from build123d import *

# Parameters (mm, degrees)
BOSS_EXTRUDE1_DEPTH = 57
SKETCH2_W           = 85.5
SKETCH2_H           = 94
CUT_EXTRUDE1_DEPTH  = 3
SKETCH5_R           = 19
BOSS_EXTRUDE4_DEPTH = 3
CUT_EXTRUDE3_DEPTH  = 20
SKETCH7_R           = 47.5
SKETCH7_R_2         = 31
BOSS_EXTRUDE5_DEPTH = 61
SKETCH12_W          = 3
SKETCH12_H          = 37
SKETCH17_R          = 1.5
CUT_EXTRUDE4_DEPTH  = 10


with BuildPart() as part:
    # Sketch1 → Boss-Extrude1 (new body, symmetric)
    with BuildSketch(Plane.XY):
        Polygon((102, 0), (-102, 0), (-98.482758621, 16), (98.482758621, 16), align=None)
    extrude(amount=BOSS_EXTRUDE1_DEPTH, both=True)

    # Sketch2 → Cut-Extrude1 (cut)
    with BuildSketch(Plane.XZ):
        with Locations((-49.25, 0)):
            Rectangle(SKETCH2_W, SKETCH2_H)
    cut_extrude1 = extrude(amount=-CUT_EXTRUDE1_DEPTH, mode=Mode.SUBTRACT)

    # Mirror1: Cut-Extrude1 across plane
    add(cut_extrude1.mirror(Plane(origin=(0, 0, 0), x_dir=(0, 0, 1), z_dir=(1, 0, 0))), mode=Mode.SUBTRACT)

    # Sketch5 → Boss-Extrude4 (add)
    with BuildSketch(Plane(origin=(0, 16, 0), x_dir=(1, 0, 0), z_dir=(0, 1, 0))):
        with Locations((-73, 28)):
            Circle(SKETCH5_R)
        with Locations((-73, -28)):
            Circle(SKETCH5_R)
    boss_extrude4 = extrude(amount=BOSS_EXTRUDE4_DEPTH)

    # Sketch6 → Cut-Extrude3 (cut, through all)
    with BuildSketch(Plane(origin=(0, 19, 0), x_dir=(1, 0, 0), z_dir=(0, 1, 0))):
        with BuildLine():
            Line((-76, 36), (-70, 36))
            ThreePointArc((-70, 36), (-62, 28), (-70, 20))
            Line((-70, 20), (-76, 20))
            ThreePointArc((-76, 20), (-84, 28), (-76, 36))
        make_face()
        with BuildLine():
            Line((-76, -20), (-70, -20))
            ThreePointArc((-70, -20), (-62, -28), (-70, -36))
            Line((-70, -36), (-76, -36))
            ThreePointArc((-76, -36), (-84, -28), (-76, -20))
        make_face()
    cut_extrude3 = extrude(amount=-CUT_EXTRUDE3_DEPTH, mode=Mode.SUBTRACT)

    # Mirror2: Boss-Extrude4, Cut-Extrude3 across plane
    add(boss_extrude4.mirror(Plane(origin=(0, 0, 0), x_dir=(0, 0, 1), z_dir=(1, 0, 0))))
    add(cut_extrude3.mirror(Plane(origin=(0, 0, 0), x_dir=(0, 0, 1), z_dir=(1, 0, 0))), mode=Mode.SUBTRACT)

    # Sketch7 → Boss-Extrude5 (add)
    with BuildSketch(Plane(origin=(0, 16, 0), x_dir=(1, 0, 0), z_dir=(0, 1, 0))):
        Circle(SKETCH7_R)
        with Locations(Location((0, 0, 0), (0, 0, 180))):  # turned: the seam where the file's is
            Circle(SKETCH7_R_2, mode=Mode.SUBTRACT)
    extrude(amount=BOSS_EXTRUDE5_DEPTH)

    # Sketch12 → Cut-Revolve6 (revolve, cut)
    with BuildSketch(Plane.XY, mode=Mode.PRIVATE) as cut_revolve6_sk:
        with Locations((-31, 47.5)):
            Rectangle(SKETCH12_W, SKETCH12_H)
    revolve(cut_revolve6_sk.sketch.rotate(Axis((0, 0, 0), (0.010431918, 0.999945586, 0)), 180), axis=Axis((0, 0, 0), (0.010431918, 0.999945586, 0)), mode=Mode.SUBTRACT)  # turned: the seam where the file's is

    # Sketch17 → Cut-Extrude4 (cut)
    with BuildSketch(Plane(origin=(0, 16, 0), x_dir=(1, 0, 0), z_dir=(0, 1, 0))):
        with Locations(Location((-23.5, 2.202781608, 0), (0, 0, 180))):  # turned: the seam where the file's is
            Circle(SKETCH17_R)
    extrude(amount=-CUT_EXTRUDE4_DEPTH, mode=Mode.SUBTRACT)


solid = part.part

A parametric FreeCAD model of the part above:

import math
import FreeCAD as App
import Part
import Sketcher
from FreeCAD import Vector
Q = App.Units.Quantity


def add_polygon(sketch, points):
    """Adds a closed chain of lines whose ends are joined by coincident constraints."""
    first, n = sketch.GeometryCount, len(points)
    for a, b in zip(points, points[1:] + points[:1]):
        sketch.addGeometry(Part.LineSegment(App.Vector(*a, 0), App.Vector(*b, 0)), False)
    for i in range(n):
        sketch.addConstraint(Sketcher.Constraint("Coincident", first + i, 2, first + (i + 1) % n, 1))

doc = App.newDocument("Part")
body = doc.addObject("PartDesign::Body", "Body")

# Sketch on XY plane
sketch1 = body.newObject("Sketcher::SketchObject", "Sketch")
sketch1.AttachmentSupport = (doc.getObject("XY_Plane"), [""])
sketch1.MapMode = "FlatFace"
add_polygon(sketch1, [(-102, 0), (102, 0), (98, 16), (-98, 16)])  # lines 0-3
sketch1.addConstraint([
    Sketcher.Constraint("Horizontal", 0),
    Sketcher.Constraint("Horizontal", 2),
    Sketcher.Constraint("Symmetric", 0, 2, 3, 2, -1, 1),
    Sketcher.Constraint("Equal", 1, 3),
    Sketcher.Constraint("DistanceX", 0, 1, 0, 2, Q("204 mm")),
    Sketcher.Constraint("DistanceY", -1, 1, 1, 2, Q("16 mm")),
    Sketcher.Constraint("DistanceX", 2, 2, 2, 1, Q("196.965517 mm")),
])
pad1 = body.newObject("PartDesign::Pad", "Pad")
pad1.Profile = sketch1
pad1.Length = 114
pad1.Midplane = True

# Sketch on XZ plane
sketch2 = body.newObject("Sketcher::SketchObject", "Sketch001")
sketch2.AttachmentSupport = (doc.getObject("XZ_Plane"), [""])
sketch2.MapMode = "FlatFace"
add_polygon(sketch2, [(-92, 47), (-92, -47), (-6, -47), (-6, 47)])  # lines 0-3
sketch2.addConstraint([
    Sketcher.Constraint("Vertical", 0),
    Sketcher.Constraint("Horizontal", 1),
    Sketcher.Constraint("Vertical", 2),
    Sketcher.Constraint("Horizontal", 3),
    Sketcher.Constraint("DistanceY", 0, 2, 0, 1, Q("94 mm")),
    Sketcher.Constraint("DistanceX", 1, 1, 1, 2, Q("85.5 mm")),
    Sketcher.Constraint("DistanceX", 0, 2, -1, 1, Q("92 mm")),
    Sketcher.Constraint("DistanceY", 0, 2, -1, 1, Q("47 mm")),
])
pocket1 = body.newObject("PartDesign::Pocket", "Pocket")
pocket1.Profile = sketch2
pocket1.Length = 3
doc.recompute()

mirrored = body.newObject("PartDesign::Mirrored", "Mirrored")
mirrored.Originals = [pocket1]
mirrored.MirrorPlane = (doc.getObject("YZ_Plane"), [""])
body.Tip = mirrored

# Sketch on XZ plane
sketch3 = body.newObject("Sketcher::SketchObject", "Sketch002")
sketch3.AttachmentSupport = (doc.getObject("XZ_Plane"), [""])
sketch3.MapMode = "FlatFace"
sketch3.AttachmentOffset = App.Placement(Vector(0, 0, -16), App.Rotation())
sketch3.addGeometry([
    Part.Circle(Vector(-73, -28, 0), Vector(0, 0, 1), 19),
    Part.Circle(Vector(-73, 28, 0), Vector(0, 0, 1), 19),
], False)
sketch3.addConstraint([
    Sketcher.Constraint("Equal", 0, 1),
    Sketcher.Constraint("Symmetric", 0, 3, 1, 3, -1),
    Sketcher.Constraint("Diameter", 0, Q("38 mm")),
    Sketcher.Constraint("DistanceX", 0, 3, -1, 1, Q("73 mm")),
    Sketcher.Constraint("DistanceY", 0, 3, -1, 1, Q("28 mm")),
])
pad2 = body.newObject("PartDesign::Pad", "Pad001")
pad2.Profile = sketch3
pad2.Length = 3
pad2.Reversed = True

# Sketch on XZ plane
sketch4 = body.newObject("Sketcher::SketchObject", "Sketch003")
sketch4.AttachmentSupport = (doc.getObject("XZ_Plane"), [""])
sketch4.MapMode = "FlatFace"
sketch4.AttachmentOffset = App.Placement(Vector(0, 0, -19), App.Rotation())
sketch4.addGeometry([
    Part.LineSegment(Vector(-70, -36, 0), Vector(-76, -36, 0)),  # 0
    Part.ArcOfCircle(Part.Circle(Vector(-76, -28, 0), Vector(0, 0, 1), 8), math.radians(90), math.radians(270)),  # 1
    Part.LineSegment(Vector(-76, -20, 0), Vector(-70, -20, 0)),  # 2
    Part.ArcOfCircle(Part.Circle(Vector(-70, -28, 0), Vector(0, 0, 1), 8), math.radians(-90), math.radians(90)),  # 3
    Part.LineSegment(Vector(-70, 20, 0), Vector(-76, 20, 0)),  # 4
    Part.ArcOfCircle(Part.Circle(Vector(-76, 28, 0), Vector(0, 0, 1), 8), math.radians(90), math.radians(270)),  # 5
    Part.LineSegment(Vector(-76, 36, 0), Vector(-70, 36, 0)),  # 6
    Part.ArcOfCircle(Part.Circle(Vector(-70, 28, 0), Vector(0, 0, 1), 8), math.radians(-90), math.radians(90)),  # 7
], False)
sketch4.addConstraint([
    Sketcher.Constraint("Tangent", 0, 2, 1, 2),
    Sketcher.Constraint("Tangent", 1, 1, 2, 1),
    Sketcher.Constraint("Tangent", 2, 2, 3, 2),
    Sketcher.Constraint("Tangent", 3, 1, 0, 1),
    Sketcher.Constraint("Tangent", 4, 2, 5, 2),
    Sketcher.Constraint("Tangent", 5, 1, 6, 1),
    Sketcher.Constraint("Tangent", 6, 2, 7, 2),
    Sketcher.Constraint("Tangent", 7, 1, 4, 1),
    Sketcher.Constraint("Horizontal", 0),
    Sketcher.Constraint("Horizontal", 2),
    Sketcher.Constraint("Horizontal", 4),
    Sketcher.Constraint("Horizontal", 6),
    Sketcher.Constraint("Equal", 3, 5),
    Sketcher.Constraint("Symmetric", 1, 3, 5, 3, -1),
    Sketcher.Constraint("Vertical", 3, 3, 7, 3),
    Sketcher.Constraint("Radius", 1, Q("8 mm")),
    Sketcher.Constraint("DistanceX", 0, 2, 0, 1, Q("6 mm")),
    Sketcher.Constraint("DistanceX", 1, 3, -1, 1, Q("76 mm")),
    Sketcher.Constraint("DistanceY", 1, 3, -1, 1, Q("28 mm")),
])
pocket2 = body.newObject("PartDesign::Pocket", "Pocket001")
pocket2.Profile = sketch4
pocket2.Type = "ThroughAll"
pocket2.Reversed = True
doc.recompute()

mirrored2 = body.newObject("PartDesign::Mirrored", "Mirrored001")
mirrored2.Originals = [pad2, pocket2]
mirrored2.MirrorPlane = (doc.getObject("YZ_Plane"), [""])
body.Tip = mirrored2

# Sketch on XZ plane
sketch5 = body.newObject("Sketcher::SketchObject", "Sketch004")
sketch5.AttachmentSupport = (doc.getObject("XZ_Plane"), [""])
sketch5.MapMode = "FlatFace"
sketch5.AttachmentOffset = App.Placement(Vector(0, 0, -16), App.Rotation())
sketch5.addGeometry([
    Part.Circle(Vector(0, 0, 0), Vector(0, 0, 1), 48),
    Part.Circle(Vector(0, 0, 0), Vector(0, 0, 1), 31),
], False)
sketch5.addConstraint([
    Sketcher.Constraint("Coincident", 0, 3, -1, 1),
    Sketcher.Constraint("Coincident", 1, 3, -1, 1),
    Sketcher.Constraint("Diameter", 0, Q("95 mm")),
    Sketcher.Constraint("Diameter", 1, Q("62 mm")),
])
pad3 = body.newObject("PartDesign::Pad", "Pad002")
pad3.Profile = sketch5
pad3.Length = 61
pad3.Reversed = True

# Sketch on XY plane
sketch6 = body.newObject("Sketcher::SketchObject", "Sketch005")
sketch6.AttachmentSupport = (doc.getObject("XY_Plane"), [""])
sketch6.MapMode = "FlatFace"
add_polygon(sketch6, [(-32.5, 66), (-32.5, 29), (-29.5, 29), (-29.5, 66)])  # lines 0-3
sketch6.addGeometry(Part.LineSegment(Vector(0.3, 28.7, 0), Vector(0.7, 65.7, 0)), True)  # axis
sketch6.addConstraint([
    Sketcher.Constraint("Vertical", 0),
    Sketcher.Constraint("Horizontal", 1),
    Sketcher.Constraint("Vertical", 2),
    Sketcher.Constraint("Horizontal", 3),
    Sketcher.Constraint("DistanceX", 1, 1, 1, 2, Q("3 mm")),
    Sketcher.Constraint("DistanceY", 0, 2, 0, 1, Q("37 mm")),
    Sketcher.Constraint("DistanceY", -1, 1, 0, 2, Q("29 mm")),
    Sketcher.Constraint("DistanceX", 0, 2, -1, 1, Q("32.5 mm")),
    Sketcher.Constraint("DistanceX", -1, 1, 4, 2, Q("0.685259 mm")),
    Sketcher.Constraint("Distance", 4, Q("37.029282 mm")),
    Sketcher.Constraint("DistanceX", -1, 1, 4, 1, Q("0.298972 mm")),
    Sketcher.Constraint("DistanceY", -1, 1, 4, 1, Q("28.657825 mm")),
])
groove = body.newObject("PartDesign::Groove", "Groove")
groove.Profile = sketch6
groove.ReferenceAxis = (sketch6, ["Axis0"])
groove.Angle = 360

# Sketch on XZ plane
sketch7 = body.newObject("Sketcher::SketchObject", "Sketch006")
sketch7.AttachmentSupport = (doc.getObject("XZ_Plane"), [""])
sketch7.MapMode = "FlatFace"
sketch7.AttachmentOffset = App.Placement(Vector(0, 0, -16), App.Rotation())
sketch7.addGeometry(Part.Circle(Vector(-23.5, -2.2, 0), Vector(0, 0, 1), 1.5), False)
sketch7.addConstraint([
    Sketcher.Constraint("Diameter", 0, Q("3 mm")),
    Sketcher.Constraint("DistanceX", 0, 3, -1, 1, Q("23.5 mm")),
    Sketcher.Constraint("DistanceY", 0, 3, -1, 1, Q("2.202782 mm")),
])
pocket3 = body.newObject("PartDesign::Pocket", "Pocket002")
pocket3.Profile = sketch7
pocket3.Length = 10
pocket3.Reversed = True

doc.recompute()
